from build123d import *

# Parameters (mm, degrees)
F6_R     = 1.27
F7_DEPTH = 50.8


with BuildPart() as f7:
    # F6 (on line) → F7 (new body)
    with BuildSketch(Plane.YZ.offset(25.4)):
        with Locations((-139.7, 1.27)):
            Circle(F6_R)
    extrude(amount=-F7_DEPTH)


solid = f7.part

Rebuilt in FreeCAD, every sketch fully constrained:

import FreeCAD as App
import Part
import Sketcher

V = App.Vector
Q = App.Units.Quantity

doc = App.newDocument("Part")
body = doc.addObject("PartDesign::Body", "Body")

# Sketch on YZ plane
sketch1 = body.newObject("Sketcher::SketchObject", "Sketch")
sketch1.AttachmentSupport = (doc.getObject("YZ_Plane"), [""])
sketch1.MapMode = "FlatFace"
sketch1.AttachmentOffset = App.Placement(V(0, 0, 1 * 25.4), App.Rotation())
sketch1.addGeometry(Part.Circle(V(-139.7, 1.27, 0), V(0, 0, 1), 1.27), False)
sketch1.addConstraint(Sketcher.Constraint("Diameter", 0, Q("0.1 in")))
sketch1.addConstraint(Sketcher.Constraint("DistanceX", 0, 3, -1, 1, Q("5.5 in")))
sketch1.addConstraint(Sketcher.Constraint("DistanceY", -1, 1, 0, 3, Q("0.05 in")))
pad1 = body.newObject("PartDesign::Pad", "Pad")
pad1.Profile = sketch1
pad1.Length = Q("2 in")
pad1.Reversed = True

doc.recompute()
